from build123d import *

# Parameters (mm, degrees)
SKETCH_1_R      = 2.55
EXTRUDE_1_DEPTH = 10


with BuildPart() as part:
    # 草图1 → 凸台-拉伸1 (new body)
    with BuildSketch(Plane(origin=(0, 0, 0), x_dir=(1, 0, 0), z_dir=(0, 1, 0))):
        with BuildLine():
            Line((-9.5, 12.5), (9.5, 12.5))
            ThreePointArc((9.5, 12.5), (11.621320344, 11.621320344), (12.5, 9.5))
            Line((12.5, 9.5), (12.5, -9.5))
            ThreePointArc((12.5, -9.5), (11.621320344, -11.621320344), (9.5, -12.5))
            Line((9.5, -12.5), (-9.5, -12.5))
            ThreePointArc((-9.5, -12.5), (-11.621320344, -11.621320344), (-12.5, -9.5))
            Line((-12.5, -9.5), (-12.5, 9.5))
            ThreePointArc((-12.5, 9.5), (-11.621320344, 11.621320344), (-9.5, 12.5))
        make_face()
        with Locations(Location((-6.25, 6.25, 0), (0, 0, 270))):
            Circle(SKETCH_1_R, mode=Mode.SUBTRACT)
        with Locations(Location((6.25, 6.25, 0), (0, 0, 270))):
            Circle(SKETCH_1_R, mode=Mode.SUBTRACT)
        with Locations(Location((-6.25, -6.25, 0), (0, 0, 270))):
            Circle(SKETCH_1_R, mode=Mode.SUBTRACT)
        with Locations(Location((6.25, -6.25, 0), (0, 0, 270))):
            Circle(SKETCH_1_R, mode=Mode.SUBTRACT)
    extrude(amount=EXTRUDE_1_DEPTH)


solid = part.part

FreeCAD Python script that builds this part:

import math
import FreeCAD as App
import Part
import Sketcher

V = App.Vector

doc = App.newDocument("Part")
body = doc.addObject("PartDesign::Body", "Body")

sketch1 = body.newObject("Sketcher::SketchObject", "Sketch")
sketch1.AttachmentSupport = (doc.getObject("XZ_Plane"), [""])
sketch1.MapMode = "FlatFace"
sketch1.addGeometry([
    Part.LineSegment(V(9.5, -12.5, 0), V(-9.5, -12.5, 0)),
    Part.ArcOfCircle(Part.Circle(V(-9.5, -9.5, 0), V(0, 0, 1), 3), math.radians(180), math.radians(270)),
    Part.LineSegment(V(-12.5, -9.5, 0), V(-12.5, 9.5, 0)),
    Part.ArcOfCircle(Part.Circle(V(-9.5, 9.5, 0), V(0, 0, 1), 3), math.radians(90), math.radians(180)),
    Part.LineSegment(V(-9.5, 12.5, 0), V(9.5, 12.5, 0)),
    Part.ArcOfCircle(Part.Circle(V(9.5, 9.5, 0), V(0, 0, 1), 3), math.radians(0), math.radians(90)),
    Part.LineSegment(V(12.5, 9.5, 0), V(12.5, -9.5, 0)),
    Part.ArcOfCircle(Part.Circle(V(9.5, -9.5, 0), V(0, 0, 1), 3), math.radians(-90), math.radians(0)),
    Part.Circle(V(6.2, 6.2, 0), V(0, 0, 1), 2.5),
    Part.Circle(V(-6.2, 6.2, 0), V(0, 0, 1), 2.5),
    Part.Circle(V(6.2, -6.2, 0), V(0, 0, 1), 2.5),
    Part.Circle(V(-6.2, -6.2, 0), V(0, 0, 1), 2.5),
], False)
sketch1.addConstraint([
    Sketcher.Constraint("Tangent", 0, 2, 1, 2),
    Sketcher.Constraint("Tangent", 1, 1, 2, 1),
    Sketcher.Constraint("Tangent", 2, 2, 3, 2),
    Sketcher.Constraint("Tangent", 3, 1, 4, 1),
    Sketcher.Constraint("Tangent", 4, 2, 5, 2),
    Sketcher.Constraint("Tangent", 5, 1, 6, 1),
    Sketcher.Constraint("Tangent", 6, 2, 7, 2),
    Sketcher.Constraint("Tangent", 7, 1, 0, 1),
    Sketcher.Constraint("Horizontal", 0),
    Sketcher.Constraint("Vertical", 2),
    Sketcher.Constraint("Horizontal", 4),
    Sketcher.Constraint("Vertical", 6),
    Sketcher.Constraint("Equal", 1, 3),
    Sketcher.Constraint("Equal", 3, 5),
    Sketcher.Constraint("Equal", 5, 7),
    Sketcher.Constraint("Equal", 8, 9),
    Sketcher.Constraint("Equal", 9, 10),
    Sketcher.Constraint("Equal", 10, 11),
    Sketcher.Constraint("Symmetric", 1, 3, 5, 3, -1, 1),
    Sketcher.Constraint("Symmetric", 9, 3, 10, 3, -1, 1),
    Sketcher.Constraint("Symmetric", 8, 3, 11, 3, -1, 1),
    Sketcher.Constraint("Symmetric", 8, 3, 9, 3, -2),
    Sketcher.Constraint("Equal", 4, 2),
    Sketcher.Constraint("Radius", 1, 3.0),
    Sketcher.Constraint("Diameter", 8, 5.1),
    Sketcher.Constraint("DistanceX", 0, 2, 0, 1, 19.0),
    Sketcher.Constraint("DistanceX", 9, 3, 8, 3, 12.5),
    Sketcher.Constraint("DistanceY", 10, 3, 8, 3, 12.5),
])
pad1 = body.newObject("PartDesign::Pad", "Pad")
pad1.Profile = sketch1
pad1.Length = 10
pad1.Reversed = True

doc.recompute()
